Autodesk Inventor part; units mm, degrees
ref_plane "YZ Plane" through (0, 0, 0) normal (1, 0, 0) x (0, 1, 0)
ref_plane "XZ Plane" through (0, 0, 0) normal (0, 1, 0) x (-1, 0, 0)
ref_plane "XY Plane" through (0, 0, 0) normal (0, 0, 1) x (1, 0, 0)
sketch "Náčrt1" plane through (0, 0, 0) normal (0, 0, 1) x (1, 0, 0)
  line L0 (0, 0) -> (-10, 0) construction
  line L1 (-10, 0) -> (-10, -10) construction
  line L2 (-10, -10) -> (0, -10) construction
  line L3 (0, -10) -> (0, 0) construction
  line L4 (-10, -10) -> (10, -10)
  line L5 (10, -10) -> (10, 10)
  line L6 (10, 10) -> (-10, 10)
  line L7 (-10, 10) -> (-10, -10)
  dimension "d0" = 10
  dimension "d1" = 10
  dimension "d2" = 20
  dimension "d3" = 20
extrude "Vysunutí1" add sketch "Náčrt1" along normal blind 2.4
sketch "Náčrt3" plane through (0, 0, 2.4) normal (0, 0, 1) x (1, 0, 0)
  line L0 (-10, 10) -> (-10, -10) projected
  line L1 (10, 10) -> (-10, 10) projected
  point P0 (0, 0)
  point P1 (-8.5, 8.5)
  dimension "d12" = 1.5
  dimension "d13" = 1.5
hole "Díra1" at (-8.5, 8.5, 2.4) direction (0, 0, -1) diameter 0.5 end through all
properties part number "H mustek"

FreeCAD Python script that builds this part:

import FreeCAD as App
import Part
import Sketcher
Q = App.Units.Quantity


def add_polygon(sketch, points):
    """Adds a closed chain of lines whose ends are joined by coincident constraints."""
    first, n = sketch.GeometryCount, len(points)
    for a, b in zip(points, points[1:] + points[:1]):
        sketch.addGeometry(Part.LineSegment(App.Vector(*a, 0), App.Vector(*b, 0)), False)
    for i in range(n):
        sketch.addConstraint(Sketcher.Constraint("Coincident", first + i, 2, first + (i + 1) % n, 1))

doc = App.newDocument("Part")
params = doc.addObject("Spreadsheet::Sheet", "Params")
for row, (alias, value) in enumerate([
    ("sketch1_width", "20 mm"),
    ("pad1_length", "2.4 mm"),
    ("sketch2_diameter", "0.5 mm"),
    ("hole_diameter", "0.5 mm"),
], start=1):
    params.set(f"A{row}", alias)
    params.set(f"B{row}", "=" + value)
    params.setAlias(f"B{row}", alias)

body = doc.addObject("PartDesign::Body", "Body")

# Sketch on XY plane
sketch1 = doc.addObject("Sketcher::SketchObject", "Sketch")
body.addObject(sketch1)
sketch1.AttachmentSupport = (doc.XY_Plane, [""])
sketch1.MapMode = "FlatFace"
add_polygon(sketch1, [(-10, 10), (-10, -10), (10, -10), (10, 10)])  # lines 0-3
sketch1.addConstraint([
    Sketcher.Constraint("Vertical", 0),
    Sketcher.Constraint("Horizontal", 1),
    Sketcher.Constraint("Vertical", 2),
    Sketcher.Constraint("Horizontal", 3),
    Sketcher.Constraint("Symmetric", 0, 2, 2, 2, -1, 1),
    Sketcher.Constraint("Equal", 3, 0),
    Sketcher.Constraint("DistanceX", 1, 1, 1, 2, Q("20 mm")),
])
sketch1.setExpression("Constraints[10]", "Params.sketch1_width")
pad1 = doc.addObject("PartDesign::Pad", "Pad")
body.addObject(pad1)
pad1.Profile = sketch1
pad1.setExpression("Length", "Params.pad1_length")

# Sketch on XY plane
sketch2 = doc.addObject("Sketcher::SketchObject", "Sketch001")
body.addObject(sketch2)
sketch2.AttachmentSupport = (doc.XY_Plane, [""])
sketch2.MapMode = "FlatFace"
sketch2.AttachmentOffset = App.Placement(App.Vector(0, 0, 2.4), App.Rotation())
sketch2.addGeometry(Part.Circle(App.Vector(-8.5, 8.5, 0), App.Vector(0, 0, 1), 0.25), False)
sketch2.addConstraint([
    Sketcher.Constraint("Diameter", 0, Q("0.5 mm")),
    Sketcher.Constraint("DistanceX", 0, 3, -1, 1, Q("8.5 mm")),
    Sketcher.Constraint("DistanceY", -1, 1, 0, 3, Q("8.5 mm")),
])
sketch2.setExpression("Constraints[0]", "Params.sketch2_diameter")
doc.recompute()
hole = doc.addObject("PartDesign::Hole", "Hole")
body.addObject(hole)
hole.Profile = sketch2
hole.ThreadType = "None"
hole.setExpression("Diameter", "Params.hole_diameter")
hole.DepthType = "ThroughAll"

doc.recompute()
